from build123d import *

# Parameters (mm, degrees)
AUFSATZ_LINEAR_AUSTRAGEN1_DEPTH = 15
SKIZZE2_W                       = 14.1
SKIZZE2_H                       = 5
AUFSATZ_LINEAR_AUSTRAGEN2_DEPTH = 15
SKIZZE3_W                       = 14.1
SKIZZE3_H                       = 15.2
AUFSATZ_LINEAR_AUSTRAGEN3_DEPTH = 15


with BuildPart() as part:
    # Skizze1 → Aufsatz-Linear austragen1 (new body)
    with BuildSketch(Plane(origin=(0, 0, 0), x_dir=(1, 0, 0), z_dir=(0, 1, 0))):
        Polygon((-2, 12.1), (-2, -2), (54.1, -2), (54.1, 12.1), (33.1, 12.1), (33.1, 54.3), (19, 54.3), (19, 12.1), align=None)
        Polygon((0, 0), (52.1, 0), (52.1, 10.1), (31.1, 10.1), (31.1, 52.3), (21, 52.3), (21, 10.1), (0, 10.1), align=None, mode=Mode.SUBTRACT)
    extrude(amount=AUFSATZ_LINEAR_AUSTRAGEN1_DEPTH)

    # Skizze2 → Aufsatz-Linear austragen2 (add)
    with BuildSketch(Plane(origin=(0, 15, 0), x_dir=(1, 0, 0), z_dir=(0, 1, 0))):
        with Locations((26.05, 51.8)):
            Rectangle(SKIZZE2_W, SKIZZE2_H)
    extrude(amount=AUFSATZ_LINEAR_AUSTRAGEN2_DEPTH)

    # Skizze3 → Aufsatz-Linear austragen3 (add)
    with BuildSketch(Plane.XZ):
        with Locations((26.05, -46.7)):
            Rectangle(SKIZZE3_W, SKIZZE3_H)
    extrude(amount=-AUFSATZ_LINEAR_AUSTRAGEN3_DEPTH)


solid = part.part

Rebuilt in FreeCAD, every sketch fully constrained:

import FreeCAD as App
import Part
import Sketcher

V = App.Vector
Q = App.Units.Quantity


def add_polygon(sketch, points):
    """Adds a closed chain of lines whose ends are joined by coincident constraints."""
    first, n = sketch.GeometryCount, len(points)
    for a, b in zip(points, points[1:] + points[:1]):
        sketch.addGeometry(Part.LineSegment(App.Vector(*a, 0), App.Vector(*b, 0)), False)
    for i in range(n):
        sketch.addConstraint(Sketcher.Constraint("Coincident", first + i, 2, first + (i + 1) % n, 1))

doc = App.newDocument("Part")
body = doc.addObject("PartDesign::Body", "Body")

sketch1 = doc.addObject("Sketcher::SketchObject", "Sketch")
body.addObject(sketch1)
sketch1.AttachmentSupport = (doc.XZ_Plane, [""])
sketch1.MapMode = "FlatFace"
add_polygon(sketch1, [(-2, -12), (-2, 2), (54, 2), (54, -12), (33, -12), (33, -54), (19, -54), (19, -12)])
add_polygon(sketch1, [(52, 0), (0, 0), (0, -10), (21, -10), (21, -52), (31, -52), (31, -10), (52, -10)])
sketch1.addConstraint([
    Sketcher.Constraint("Vertical", 0),
    Sketcher.Constraint("Horizontal", 1),
    Sketcher.Constraint("Vertical", 2),
    Sketcher.Constraint("Horizontal", 3),
    Sketcher.Constraint("Vertical", 4),
    Sketcher.Constraint("Horizontal", 5),
    Sketcher.Constraint("Vertical", 6),
    Sketcher.Constraint("Horizontal", 7),
    Sketcher.Constraint("Horizontal", 8),
    Sketcher.Constraint("Vertical", 9),
    Sketcher.Constraint("Horizontal", 10),
    Sketcher.Constraint("Vertical", 11),
    Sketcher.Constraint("Horizontal", 12),
    Sketcher.Constraint("Vertical", 13),
    Sketcher.Constraint("Horizontal", 14),
    Sketcher.Constraint("Vertical", 15),
    Sketcher.Constraint("Coincident", 8, 2, -1, 1),
    Sketcher.Constraint("Horizontal", 3, 2, 6, 2),
    Sketcher.Constraint("Horizontal", 10, 2, 13, 2),
    Sketcher.Constraint("Equal", 3, 7),
    Sketcher.Constraint("Equal", 7, 10),
    Sketcher.Constraint("Equal", 10, 14),
    Sketcher.Constraint("Equal", 5, 0),
    Sketcher.Constraint("Equal", 12, 9),
    Sketcher.Constraint("Equal", 6, 11),
    Sketcher.Constraint("DistanceX", 3, 2, 3, 1, Q("21 mm")),
    Sketcher.Constraint("DistanceX", 1, 1, 1, 2, Q("56.1 mm")),
    Sketcher.Constraint("DistanceX", 8, 2, 8, 1, Q("52.1 mm")),
    Sketcher.Constraint("DistanceY", 4, 2, 4, 1, Q("42.2 mm")),
    Sketcher.Constraint("DistanceX", 0, 2, -1, 1, Q("2 mm")),
    Sketcher.Constraint("DistanceY", -1, 1, 0, 2, Q("2 mm")),
])
pad1 = doc.addObject("PartDesign::Pad", "Pad")
body.addObject(pad1)
pad1.Profile = sketch1
pad1.Length = 15
pad1.Reversed = True

sketch2 = doc.addObject("Sketcher::SketchObject", "Sketch001")
body.addObject(sketch2)
sketch2.AttachmentSupport = (doc.XZ_Plane, [""])
sketch2.MapMode = "FlatFace"
sketch2.AttachmentOffset = App.Placement(V(0, 0, -15), App.Rotation())
add_polygon(sketch2, [(19, -54), (19, -49), (33, -49), (33, -54)])
sketch2.addConstraint([
    Sketcher.Constraint("Vertical", 0),
    Sketcher.Constraint("Horizontal", 1),
    Sketcher.Constraint("Vertical", 2),
    Sketcher.Constraint("Horizontal", 3),
    Sketcher.Constraint("DistanceY", 0, 1, 0, 2, Q("5 mm")),
    Sketcher.Constraint("DistanceX", 1, 1, 1, 2, Q("14.1 mm")),
    Sketcher.Constraint("DistanceX", -1, 1, 0, 2, Q("19 mm")),
    Sketcher.Constraint("DistanceY", 0, 2, -1, 1, Q("49.3 mm")),
])
pad2 = doc.addObject("PartDesign::Pad", "Pad001")
body.addObject(pad2)
pad2.Profile = sketch2
pad2.Length = 15
pad2.Reversed = True

sketch3 = doc.addObject("Sketcher::SketchObject", "Sketch002")
body.addObject(sketch3)
sketch3.AttachmentSupport = (doc.XZ_Plane, [""])
sketch3.MapMode = "FlatFace"
add_polygon(sketch3, [(19, -39), (19, -54), (33, -54), (33, -39)])
sketch3.addConstraint([
    Sketcher.Constraint("Vertical", 0),
    Sketcher.Constraint("Horizontal", 1),
    Sketcher.Constraint("Vertical", 2),
    Sketcher.Constraint("Horizontal", 3),
    Sketcher.Constraint("DistanceX", 1, 1, 1, 2, Q("14.1 mm")),
    Sketcher.Constraint("DistanceY", 0, 2, 0, 1, Q("15.2 mm")),
    Sketcher.Constraint("DistanceX", -1, 1, 0, 2, Q("19 mm")),
    Sketcher.Constraint("DistanceY", 0, 2, -1, 1, Q("54.3 mm")),
])
pad3 = doc.addObject("PartDesign::Pad", "Pad002")
body.addObject(pad3)
pad3.Profile = sketch3
pad3.Length = 15
pad3.Reversed = True

doc.recompute()
